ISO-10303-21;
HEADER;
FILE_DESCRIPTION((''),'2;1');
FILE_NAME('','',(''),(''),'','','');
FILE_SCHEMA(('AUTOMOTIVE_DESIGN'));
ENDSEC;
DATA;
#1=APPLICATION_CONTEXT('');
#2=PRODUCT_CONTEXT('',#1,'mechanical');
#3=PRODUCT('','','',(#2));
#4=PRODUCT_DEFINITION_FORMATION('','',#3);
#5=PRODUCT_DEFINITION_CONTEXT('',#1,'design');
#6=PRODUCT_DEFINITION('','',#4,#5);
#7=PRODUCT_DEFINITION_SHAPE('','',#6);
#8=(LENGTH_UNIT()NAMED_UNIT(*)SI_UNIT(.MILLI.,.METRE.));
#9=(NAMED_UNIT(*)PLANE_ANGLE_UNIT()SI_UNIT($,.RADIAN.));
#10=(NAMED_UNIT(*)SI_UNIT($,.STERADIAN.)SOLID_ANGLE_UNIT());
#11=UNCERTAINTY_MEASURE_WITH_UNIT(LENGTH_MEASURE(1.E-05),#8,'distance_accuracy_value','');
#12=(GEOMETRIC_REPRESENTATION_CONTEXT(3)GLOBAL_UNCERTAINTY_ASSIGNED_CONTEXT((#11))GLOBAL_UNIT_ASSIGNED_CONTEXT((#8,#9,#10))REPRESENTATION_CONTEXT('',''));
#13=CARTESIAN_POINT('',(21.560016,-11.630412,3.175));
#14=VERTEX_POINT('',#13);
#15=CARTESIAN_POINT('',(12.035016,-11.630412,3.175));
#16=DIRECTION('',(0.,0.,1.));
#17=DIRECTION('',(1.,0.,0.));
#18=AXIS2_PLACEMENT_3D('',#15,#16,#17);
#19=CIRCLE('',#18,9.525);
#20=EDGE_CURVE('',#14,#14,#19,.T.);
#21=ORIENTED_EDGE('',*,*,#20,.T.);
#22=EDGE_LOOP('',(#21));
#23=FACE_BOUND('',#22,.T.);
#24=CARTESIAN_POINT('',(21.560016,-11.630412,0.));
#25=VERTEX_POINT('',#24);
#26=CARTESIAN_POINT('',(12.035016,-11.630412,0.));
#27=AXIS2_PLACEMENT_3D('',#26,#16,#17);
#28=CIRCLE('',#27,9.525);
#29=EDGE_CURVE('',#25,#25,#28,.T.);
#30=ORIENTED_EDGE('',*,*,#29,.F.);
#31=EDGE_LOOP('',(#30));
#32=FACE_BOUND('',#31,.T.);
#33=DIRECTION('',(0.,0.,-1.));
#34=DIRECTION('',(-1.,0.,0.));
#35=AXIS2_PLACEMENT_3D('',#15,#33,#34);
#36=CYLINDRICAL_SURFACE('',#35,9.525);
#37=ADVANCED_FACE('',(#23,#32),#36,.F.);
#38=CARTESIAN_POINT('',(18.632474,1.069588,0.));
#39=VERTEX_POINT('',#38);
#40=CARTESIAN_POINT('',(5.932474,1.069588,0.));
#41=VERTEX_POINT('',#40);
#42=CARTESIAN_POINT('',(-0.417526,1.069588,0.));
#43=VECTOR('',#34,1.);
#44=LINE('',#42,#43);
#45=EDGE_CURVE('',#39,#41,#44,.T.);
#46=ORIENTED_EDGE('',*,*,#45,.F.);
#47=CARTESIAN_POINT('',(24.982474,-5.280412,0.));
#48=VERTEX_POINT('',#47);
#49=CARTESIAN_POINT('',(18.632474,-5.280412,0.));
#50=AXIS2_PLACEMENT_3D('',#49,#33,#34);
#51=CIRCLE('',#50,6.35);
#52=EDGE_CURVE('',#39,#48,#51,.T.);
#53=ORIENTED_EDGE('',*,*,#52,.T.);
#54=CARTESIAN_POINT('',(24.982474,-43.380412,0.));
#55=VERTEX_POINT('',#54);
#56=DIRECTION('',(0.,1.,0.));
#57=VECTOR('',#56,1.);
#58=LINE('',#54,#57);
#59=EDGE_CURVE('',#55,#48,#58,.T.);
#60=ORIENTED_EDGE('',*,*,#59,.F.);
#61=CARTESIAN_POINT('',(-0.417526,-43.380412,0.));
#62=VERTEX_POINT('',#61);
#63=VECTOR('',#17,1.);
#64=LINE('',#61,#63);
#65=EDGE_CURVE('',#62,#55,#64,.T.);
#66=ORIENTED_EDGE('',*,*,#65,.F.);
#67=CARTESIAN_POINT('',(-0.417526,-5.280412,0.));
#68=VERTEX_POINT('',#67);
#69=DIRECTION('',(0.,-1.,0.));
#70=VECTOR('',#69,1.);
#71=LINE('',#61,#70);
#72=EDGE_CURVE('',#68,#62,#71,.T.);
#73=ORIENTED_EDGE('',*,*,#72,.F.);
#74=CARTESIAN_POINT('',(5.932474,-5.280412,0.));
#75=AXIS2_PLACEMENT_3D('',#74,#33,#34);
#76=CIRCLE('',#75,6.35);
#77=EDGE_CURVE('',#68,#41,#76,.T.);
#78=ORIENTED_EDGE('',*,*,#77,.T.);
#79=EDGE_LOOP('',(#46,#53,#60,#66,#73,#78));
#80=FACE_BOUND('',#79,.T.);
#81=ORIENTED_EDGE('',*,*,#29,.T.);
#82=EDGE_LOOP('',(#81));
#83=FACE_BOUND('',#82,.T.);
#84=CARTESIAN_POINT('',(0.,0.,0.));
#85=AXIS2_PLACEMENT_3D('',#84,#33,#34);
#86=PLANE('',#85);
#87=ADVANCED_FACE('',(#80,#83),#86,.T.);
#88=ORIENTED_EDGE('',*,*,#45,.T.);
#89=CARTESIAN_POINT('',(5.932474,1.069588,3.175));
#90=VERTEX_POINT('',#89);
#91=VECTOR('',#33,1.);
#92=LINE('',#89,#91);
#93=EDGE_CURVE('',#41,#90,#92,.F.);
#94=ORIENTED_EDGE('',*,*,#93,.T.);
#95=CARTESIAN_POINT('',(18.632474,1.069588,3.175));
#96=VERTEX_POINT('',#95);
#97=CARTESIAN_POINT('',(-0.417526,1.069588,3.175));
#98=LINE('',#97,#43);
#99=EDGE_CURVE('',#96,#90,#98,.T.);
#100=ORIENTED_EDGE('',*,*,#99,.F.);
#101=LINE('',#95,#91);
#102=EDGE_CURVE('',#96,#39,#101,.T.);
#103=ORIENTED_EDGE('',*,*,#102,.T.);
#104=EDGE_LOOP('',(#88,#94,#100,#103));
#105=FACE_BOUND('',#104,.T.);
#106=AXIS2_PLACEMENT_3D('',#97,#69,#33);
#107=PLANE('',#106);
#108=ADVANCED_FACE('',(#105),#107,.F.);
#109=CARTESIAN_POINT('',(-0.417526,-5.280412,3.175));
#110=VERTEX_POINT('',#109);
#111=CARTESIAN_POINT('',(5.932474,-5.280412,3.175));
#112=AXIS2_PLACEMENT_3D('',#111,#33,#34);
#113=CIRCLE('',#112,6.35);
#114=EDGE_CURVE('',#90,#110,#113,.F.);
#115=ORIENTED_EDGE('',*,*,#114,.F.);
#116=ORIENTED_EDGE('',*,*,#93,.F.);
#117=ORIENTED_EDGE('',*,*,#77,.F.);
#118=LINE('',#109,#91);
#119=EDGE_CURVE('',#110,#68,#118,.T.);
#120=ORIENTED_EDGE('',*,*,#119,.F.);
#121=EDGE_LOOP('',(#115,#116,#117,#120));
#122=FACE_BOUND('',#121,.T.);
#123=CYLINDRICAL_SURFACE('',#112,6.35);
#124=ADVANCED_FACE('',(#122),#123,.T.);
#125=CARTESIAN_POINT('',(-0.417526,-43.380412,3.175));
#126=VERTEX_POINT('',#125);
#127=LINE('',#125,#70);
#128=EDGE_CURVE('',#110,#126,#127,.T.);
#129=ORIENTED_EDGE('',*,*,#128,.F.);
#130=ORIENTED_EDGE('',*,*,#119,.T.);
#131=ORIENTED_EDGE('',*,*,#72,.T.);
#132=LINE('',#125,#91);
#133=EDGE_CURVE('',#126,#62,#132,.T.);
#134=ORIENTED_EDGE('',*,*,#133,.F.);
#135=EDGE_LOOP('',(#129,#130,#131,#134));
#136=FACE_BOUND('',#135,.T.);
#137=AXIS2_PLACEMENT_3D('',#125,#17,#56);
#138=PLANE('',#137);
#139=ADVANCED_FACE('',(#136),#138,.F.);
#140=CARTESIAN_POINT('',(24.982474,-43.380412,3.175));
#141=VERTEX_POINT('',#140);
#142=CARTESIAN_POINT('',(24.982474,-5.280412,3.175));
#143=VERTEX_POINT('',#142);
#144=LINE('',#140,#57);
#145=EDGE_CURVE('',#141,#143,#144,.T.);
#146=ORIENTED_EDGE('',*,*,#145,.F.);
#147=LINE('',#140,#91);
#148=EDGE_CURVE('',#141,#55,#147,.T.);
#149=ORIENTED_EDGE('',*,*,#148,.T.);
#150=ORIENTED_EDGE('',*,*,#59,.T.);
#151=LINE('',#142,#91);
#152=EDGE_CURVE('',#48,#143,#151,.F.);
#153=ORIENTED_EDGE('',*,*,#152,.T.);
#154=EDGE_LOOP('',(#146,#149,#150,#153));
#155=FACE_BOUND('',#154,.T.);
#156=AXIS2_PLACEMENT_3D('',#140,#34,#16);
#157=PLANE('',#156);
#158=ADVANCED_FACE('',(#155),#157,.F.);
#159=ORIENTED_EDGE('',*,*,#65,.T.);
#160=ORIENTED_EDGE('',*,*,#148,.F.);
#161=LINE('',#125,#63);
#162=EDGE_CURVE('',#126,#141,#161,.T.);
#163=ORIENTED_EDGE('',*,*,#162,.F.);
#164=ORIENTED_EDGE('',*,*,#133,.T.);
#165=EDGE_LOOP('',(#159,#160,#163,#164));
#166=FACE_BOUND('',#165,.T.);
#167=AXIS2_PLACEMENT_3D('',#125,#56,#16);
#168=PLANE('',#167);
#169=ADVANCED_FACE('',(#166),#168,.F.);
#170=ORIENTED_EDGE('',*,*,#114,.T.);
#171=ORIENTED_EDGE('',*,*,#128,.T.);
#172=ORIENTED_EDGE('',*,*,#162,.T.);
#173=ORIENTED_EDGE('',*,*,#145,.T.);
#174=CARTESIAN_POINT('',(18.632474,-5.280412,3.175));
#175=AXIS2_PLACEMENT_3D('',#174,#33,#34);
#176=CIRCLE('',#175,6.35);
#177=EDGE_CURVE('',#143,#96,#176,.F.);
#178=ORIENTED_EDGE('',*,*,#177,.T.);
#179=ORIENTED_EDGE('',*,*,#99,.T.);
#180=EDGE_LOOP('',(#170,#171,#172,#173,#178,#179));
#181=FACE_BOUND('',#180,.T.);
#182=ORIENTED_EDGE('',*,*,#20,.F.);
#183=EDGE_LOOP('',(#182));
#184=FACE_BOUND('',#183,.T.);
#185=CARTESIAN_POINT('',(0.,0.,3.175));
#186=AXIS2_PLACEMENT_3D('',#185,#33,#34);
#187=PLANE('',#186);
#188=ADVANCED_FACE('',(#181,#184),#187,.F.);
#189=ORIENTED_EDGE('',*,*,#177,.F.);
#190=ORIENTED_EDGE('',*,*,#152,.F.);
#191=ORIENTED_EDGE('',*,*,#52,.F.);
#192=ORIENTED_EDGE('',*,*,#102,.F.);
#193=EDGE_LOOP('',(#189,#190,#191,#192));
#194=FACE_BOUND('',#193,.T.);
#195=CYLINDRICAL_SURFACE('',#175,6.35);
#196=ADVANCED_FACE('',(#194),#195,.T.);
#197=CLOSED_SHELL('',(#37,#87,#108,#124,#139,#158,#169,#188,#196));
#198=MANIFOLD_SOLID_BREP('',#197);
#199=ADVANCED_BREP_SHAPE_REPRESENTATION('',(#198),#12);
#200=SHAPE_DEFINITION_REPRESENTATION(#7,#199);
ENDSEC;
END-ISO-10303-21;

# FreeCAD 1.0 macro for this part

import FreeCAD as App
import Part
import Sketcher
Q = App.Units.Quantity


def edges_at(feature, points):
    """Names of the edges that pass closest to the given points."""
    edges = feature.Shape.Edges
    near = lambda p: min(range(len(edges)), key=lambda i: edges[i].distToShape(Part.Vertex(*p))[0])
    return sorted({f"Edge{near(p) + 1}" for p in points})


def add_polygon(sketch, points):
    """Adds a closed chain of lines whose ends are joined by coincident constraints."""
    first, n = sketch.GeometryCount, len(points)
    for a, b in zip(points, points[1:] + points[:1]):
        sketch.addGeometry(Part.LineSegment(App.Vector(*a, 0), App.Vector(*b, 0)), False)
    for i in range(n):
        sketch.addConstraint(Sketcher.Constraint("Coincident", first + i, 2, first + (i + 1) % n, 1))

doc = App.newDocument("Part")
body = doc.addObject("PartDesign::Body", "Body")

# Sketch on XY plane
sketch1 = body.newObject("Sketcher::SketchObject", "Sketch")
sketch1.AttachmentSupport = (doc.getObject("XY_Plane"), [""])
sketch1.MapMode = "FlatFace"
add_polygon(sketch1, [(-0.417526, 1.069588), (-0.417526, -43.380412), (24.982474, -43.380412), (24.982474, 1.069588)])  # lines 0-3
sketch1.addGeometry(Part.Circle(App.Vector(12.035016, -11.630412, 0), App.Vector(0, 0, 1), 9.525), False)  # 4
sketch1.addConstraint([
    Sketcher.Constraint("Vertical", 0),
    Sketcher.Constraint("Horizontal", 1),
    Sketcher.Constraint("Vertical", 2),
    Sketcher.Constraint("Horizontal", 3),
    Sketcher.Constraint("Diameter", 4, Q("0.75 in")),
    Sketcher.Constraint("DistanceX", 1, 1, 1, 2, Q("1 in")),
    Sketcher.Constraint("DistanceY", 0, 2, 0, 1, Q("1.75 in")),
    Sketcher.Constraint("DistanceY", 4, 3, 2, 2, Q("0.5 in")),
    Sketcher.Constraint("DistanceX", -1, 1, 4, 3, Q("12.035016 mm")),
    Sketcher.Constraint("DistanceY", 4, 3, -1, 1, Q("11.630412 mm")),
    Sketcher.Constraint("DistanceX", 0, 2, -1, 1, Q("0.417526 mm")),
])
pad1 = body.newObject("PartDesign::Pad", "Pad")
pad1.Profile = sketch1
pad1.Length = Q("0.125 in")
doc.recompute()

fillet = body.newObject("PartDesign::Fillet", "Fillet")
fillet.Base = (pad1, edges_at(pad1, [(-0.418, 1.07, 1.587), (24.982, 1.07, 1.587)]))
fillet.Radius = Q("0.25 in")

doc.recompute()
